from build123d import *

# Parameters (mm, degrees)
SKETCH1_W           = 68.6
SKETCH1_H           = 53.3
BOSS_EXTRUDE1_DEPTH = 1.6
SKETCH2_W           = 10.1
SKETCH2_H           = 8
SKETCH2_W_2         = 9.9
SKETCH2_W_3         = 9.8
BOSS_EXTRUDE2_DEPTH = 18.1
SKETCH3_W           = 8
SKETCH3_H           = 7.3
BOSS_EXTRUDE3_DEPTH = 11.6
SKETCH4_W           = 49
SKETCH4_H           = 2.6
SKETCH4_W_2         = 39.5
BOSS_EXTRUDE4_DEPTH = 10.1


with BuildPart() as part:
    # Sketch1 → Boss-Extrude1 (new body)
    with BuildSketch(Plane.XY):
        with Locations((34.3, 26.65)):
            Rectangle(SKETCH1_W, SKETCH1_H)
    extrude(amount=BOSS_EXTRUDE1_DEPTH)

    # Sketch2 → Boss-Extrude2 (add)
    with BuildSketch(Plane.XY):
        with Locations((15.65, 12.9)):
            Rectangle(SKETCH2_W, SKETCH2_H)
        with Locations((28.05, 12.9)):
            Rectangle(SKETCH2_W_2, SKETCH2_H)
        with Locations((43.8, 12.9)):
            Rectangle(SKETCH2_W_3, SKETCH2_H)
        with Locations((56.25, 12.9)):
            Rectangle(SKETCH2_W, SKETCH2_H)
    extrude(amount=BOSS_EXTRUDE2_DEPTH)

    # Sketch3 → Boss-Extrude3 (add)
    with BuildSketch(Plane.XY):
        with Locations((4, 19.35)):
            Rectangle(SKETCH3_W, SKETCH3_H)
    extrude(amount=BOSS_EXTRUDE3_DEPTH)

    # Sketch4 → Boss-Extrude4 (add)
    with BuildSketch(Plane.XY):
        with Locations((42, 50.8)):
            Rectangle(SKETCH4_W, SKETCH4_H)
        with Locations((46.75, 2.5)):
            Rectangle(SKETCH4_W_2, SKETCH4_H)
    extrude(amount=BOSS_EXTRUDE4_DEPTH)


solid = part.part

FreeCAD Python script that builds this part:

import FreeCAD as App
import Part
import Sketcher

V = App.Vector


def add_polygon(sketch, points):
    """Adds a closed chain of lines whose ends are joined by coincident constraints."""
    first, n = sketch.GeometryCount, len(points)
    for a, b in zip(points, points[1:] + points[:1]):
        sketch.addGeometry(Part.LineSegment(App.Vector(*a, 0), App.Vector(*b, 0)), False)
    for i in range(n):
        sketch.addConstraint(Sketcher.Constraint("Coincident", first + i, 2, first + (i + 1) % n, 1))

doc = App.newDocument("Part")
body = doc.addObject("PartDesign::Body", "Body")

# Sketch on XY plane
sketch1 = doc.addObject("Sketcher::SketchObject", "Sketch")
body.addObject(sketch1)
sketch1.AttachmentSupport = (doc.XY_Plane, [""])
sketch1.MapMode = "FlatFace"
add_polygon(sketch1, [(0, 53), (0, 0), (69, 0), (69, 53)])  # lines 0-3
sketch1.addConstraint([
    Sketcher.Constraint("Vertical", 0),
    Sketcher.Constraint("Horizontal", 1),
    Sketcher.Constraint("Vertical", 2),
    Sketcher.Constraint("Horizontal", 3),
    Sketcher.Constraint("Coincident", 0, 2, -1, 1),
    Sketcher.Constraint("DistanceX", 1, 1, 1, 2, 68.6),
    Sketcher.Constraint("DistanceY", 0, 2, 0, 1, 53.3),
])
pad1 = doc.addObject("PartDesign::Pad", "Pad")
body.addObject(pad1)
pad1.Profile = sketch1
pad1.Length = 1.6

# Sketch on XY plane
sketch2 = doc.addObject("Sketcher::SketchObject", "Sketch001")
body.addObject(sketch2)
sketch2.AttachmentSupport = (doc.XY_Plane, [""])
sketch2.MapMode = "FlatFace"
add_polygon(sketch2, [(11, 17), (11, 9), (21, 9), (21, 17)])  # lines 0-3
add_polygon(sketch2, [(23, 17), (23, 9), (33, 9), (33, 17)])  # lines 4-7
add_polygon(sketch2, [(39, 17), (39, 9), (49, 9), (49, 17)])  # lines 8-11
add_polygon(sketch2, [(51, 17), (51, 9), (61, 9), (61, 17)])  # lines 12-15
sketch2.addConstraint([
    Sketcher.Constraint("Vertical", 0),
    Sketcher.Constraint("Horizontal", 1),
    Sketcher.Constraint("Vertical", 2),
    Sketcher.Constraint("Horizontal", 3),
    Sketcher.Constraint("Vertical", 4),
    Sketcher.Constraint("Horizontal", 5),
    Sketcher.Constraint("Vertical", 6),
    Sketcher.Constraint("Horizontal", 7),
    Sketcher.Constraint("Vertical", 8),
    Sketcher.Constraint("Horizontal", 9),
    Sketcher.Constraint("Vertical", 10),
    Sketcher.Constraint("Horizontal", 11),
    Sketcher.Constraint("Vertical", 12),
    Sketcher.Constraint("Horizontal", 13),
    Sketcher.Constraint("Vertical", 14),
    Sketcher.Constraint("Horizontal", 15),
    Sketcher.Constraint("Horizontal", 1, 2, 4, 2),
    Sketcher.Constraint("Horizontal", 3, 2, 6, 2),
    Sketcher.Constraint("Horizontal", 5, 2, 8, 2),
    Sketcher.Constraint("Horizontal", 7, 2, 10, 2),
    Sketcher.Constraint("Horizontal", 9, 2, 12, 2),
    Sketcher.Constraint("Horizontal", 11, 2, 14, 2),
    Sketcher.Constraint("Equal", 3, 13),
    Sketcher.Constraint("DistanceY", 0, 2, 0, 1, 8.0),
    Sketcher.Constraint("DistanceX", 1, 1, 1, 2, 10.1),
    Sketcher.Constraint("DistanceX", 5, 1, 5, 2, 9.9),
    Sketcher.Constraint("DistanceX", 9, 1, 9, 2, 9.8),
    Sketcher.Constraint("DistanceX", -1, 1, 5, 2, 33.0),
    Sketcher.Constraint("DistanceX", -1, 1, 0, 2, 10.6),
    Sketcher.Constraint("DistanceY", -1, 1, 0, 2, 8.9),
    Sketcher.Constraint("DistanceX", -1, 1, 8, 2, 38.9),
    Sketcher.Constraint("DistanceX", -1, 1, 12, 2, 51.2),
])
pad2 = doc.addObject("PartDesign::Pad", "Pad001")
body.addObject(pad2)
pad2.Profile = sketch2
pad2.Length = 18.1

# Sketch on XY plane
sketch3 = doc.addObject("Sketcher::SketchObject", "Sketch002")
body.addObject(sketch3)
sketch3.AttachmentSupport = (doc.XY_Plane, [""])
sketch3.MapMode = "FlatFace"
add_polygon(sketch3, [(0, 23), (0, 16), (8, 16), (8, 23)])  # lines 0-3
sketch3.addConstraint([
    Sketcher.Constraint("Vertical", 0),
    Sketcher.Constraint("Horizontal", 1),
    Sketcher.Constraint("Vertical", 2),
    Sketcher.Constraint("Horizontal", 3),
    Sketcher.Constraint("PointOnObject", 0, 2, -2),
    Sketcher.Constraint("DistanceX", 1, 1, 1, 2, 8.0),
    Sketcher.Constraint("DistanceY", 0, 2, 0, 1, 7.3),
    Sketcher.Constraint("DistanceY", -1, 1, 2, 2, 23.0),
])
pad3 = doc.addObject("PartDesign::Pad", "Pad002")
body.addObject(pad3)
pad3.Profile = sketch3
pad3.Length = 11.6

# Sketch on XY plane
sketch4 = doc.addObject("Sketcher::SketchObject", "Sketch003")
body.addObject(sketch4)
sketch4.AttachmentSupport = (doc.XY_Plane, [""])
sketch4.MapMode = "FlatFace"
add_polygon(sketch4, [(17.5, 52.1), (17.5, 49.5), (66.5, 49.5), (66.5, 52.1)])  # lines 0-3
add_polygon(sketch4, [(27, 3.8), (27, 1.2), (66.5, 1.2), (66.5, 3.8)])  # lines 4-7
sketch4.addConstraint([
    Sketcher.Constraint("Vertical", 0),
    Sketcher.Constraint("Horizontal", 1),
    Sketcher.Constraint("Vertical", 2),
    Sketcher.Constraint("Horizontal", 3),
    Sketcher.Constraint("Vertical", 4),
    Sketcher.Constraint("Horizontal", 5),
    Sketcher.Constraint("Vertical", 6),
    Sketcher.Constraint("Horizontal", 7),
    Sketcher.Constraint("Vertical", 2, 2, 5, 2),
    Sketcher.Constraint("Equal", 2, 4),
    Sketcher.Constraint("DistanceX", 1, 1, 1, 2, 49.0),
    Sketcher.Constraint("DistanceX", 5, 1, 5, 2, 39.5),
    Sketcher.Constraint("DistanceY", 0, 2, 0, 1, 2.6),
    Sketcher.Constraint("DistanceX", -1, 1, 4, 2, 27.0),
    Sketcher.Constraint("DistanceY", -1, 1, 0, 2, 49.5),
    Sketcher.Constraint("DistanceY", -1, 1, 4, 2, 1.2),
])
pad4 = doc.addObject("PartDesign::Pad", "Pad003")
body.addObject(pad4)
pad4.Profile = sketch4
pad4.Length = 10.1

doc.recompute()
